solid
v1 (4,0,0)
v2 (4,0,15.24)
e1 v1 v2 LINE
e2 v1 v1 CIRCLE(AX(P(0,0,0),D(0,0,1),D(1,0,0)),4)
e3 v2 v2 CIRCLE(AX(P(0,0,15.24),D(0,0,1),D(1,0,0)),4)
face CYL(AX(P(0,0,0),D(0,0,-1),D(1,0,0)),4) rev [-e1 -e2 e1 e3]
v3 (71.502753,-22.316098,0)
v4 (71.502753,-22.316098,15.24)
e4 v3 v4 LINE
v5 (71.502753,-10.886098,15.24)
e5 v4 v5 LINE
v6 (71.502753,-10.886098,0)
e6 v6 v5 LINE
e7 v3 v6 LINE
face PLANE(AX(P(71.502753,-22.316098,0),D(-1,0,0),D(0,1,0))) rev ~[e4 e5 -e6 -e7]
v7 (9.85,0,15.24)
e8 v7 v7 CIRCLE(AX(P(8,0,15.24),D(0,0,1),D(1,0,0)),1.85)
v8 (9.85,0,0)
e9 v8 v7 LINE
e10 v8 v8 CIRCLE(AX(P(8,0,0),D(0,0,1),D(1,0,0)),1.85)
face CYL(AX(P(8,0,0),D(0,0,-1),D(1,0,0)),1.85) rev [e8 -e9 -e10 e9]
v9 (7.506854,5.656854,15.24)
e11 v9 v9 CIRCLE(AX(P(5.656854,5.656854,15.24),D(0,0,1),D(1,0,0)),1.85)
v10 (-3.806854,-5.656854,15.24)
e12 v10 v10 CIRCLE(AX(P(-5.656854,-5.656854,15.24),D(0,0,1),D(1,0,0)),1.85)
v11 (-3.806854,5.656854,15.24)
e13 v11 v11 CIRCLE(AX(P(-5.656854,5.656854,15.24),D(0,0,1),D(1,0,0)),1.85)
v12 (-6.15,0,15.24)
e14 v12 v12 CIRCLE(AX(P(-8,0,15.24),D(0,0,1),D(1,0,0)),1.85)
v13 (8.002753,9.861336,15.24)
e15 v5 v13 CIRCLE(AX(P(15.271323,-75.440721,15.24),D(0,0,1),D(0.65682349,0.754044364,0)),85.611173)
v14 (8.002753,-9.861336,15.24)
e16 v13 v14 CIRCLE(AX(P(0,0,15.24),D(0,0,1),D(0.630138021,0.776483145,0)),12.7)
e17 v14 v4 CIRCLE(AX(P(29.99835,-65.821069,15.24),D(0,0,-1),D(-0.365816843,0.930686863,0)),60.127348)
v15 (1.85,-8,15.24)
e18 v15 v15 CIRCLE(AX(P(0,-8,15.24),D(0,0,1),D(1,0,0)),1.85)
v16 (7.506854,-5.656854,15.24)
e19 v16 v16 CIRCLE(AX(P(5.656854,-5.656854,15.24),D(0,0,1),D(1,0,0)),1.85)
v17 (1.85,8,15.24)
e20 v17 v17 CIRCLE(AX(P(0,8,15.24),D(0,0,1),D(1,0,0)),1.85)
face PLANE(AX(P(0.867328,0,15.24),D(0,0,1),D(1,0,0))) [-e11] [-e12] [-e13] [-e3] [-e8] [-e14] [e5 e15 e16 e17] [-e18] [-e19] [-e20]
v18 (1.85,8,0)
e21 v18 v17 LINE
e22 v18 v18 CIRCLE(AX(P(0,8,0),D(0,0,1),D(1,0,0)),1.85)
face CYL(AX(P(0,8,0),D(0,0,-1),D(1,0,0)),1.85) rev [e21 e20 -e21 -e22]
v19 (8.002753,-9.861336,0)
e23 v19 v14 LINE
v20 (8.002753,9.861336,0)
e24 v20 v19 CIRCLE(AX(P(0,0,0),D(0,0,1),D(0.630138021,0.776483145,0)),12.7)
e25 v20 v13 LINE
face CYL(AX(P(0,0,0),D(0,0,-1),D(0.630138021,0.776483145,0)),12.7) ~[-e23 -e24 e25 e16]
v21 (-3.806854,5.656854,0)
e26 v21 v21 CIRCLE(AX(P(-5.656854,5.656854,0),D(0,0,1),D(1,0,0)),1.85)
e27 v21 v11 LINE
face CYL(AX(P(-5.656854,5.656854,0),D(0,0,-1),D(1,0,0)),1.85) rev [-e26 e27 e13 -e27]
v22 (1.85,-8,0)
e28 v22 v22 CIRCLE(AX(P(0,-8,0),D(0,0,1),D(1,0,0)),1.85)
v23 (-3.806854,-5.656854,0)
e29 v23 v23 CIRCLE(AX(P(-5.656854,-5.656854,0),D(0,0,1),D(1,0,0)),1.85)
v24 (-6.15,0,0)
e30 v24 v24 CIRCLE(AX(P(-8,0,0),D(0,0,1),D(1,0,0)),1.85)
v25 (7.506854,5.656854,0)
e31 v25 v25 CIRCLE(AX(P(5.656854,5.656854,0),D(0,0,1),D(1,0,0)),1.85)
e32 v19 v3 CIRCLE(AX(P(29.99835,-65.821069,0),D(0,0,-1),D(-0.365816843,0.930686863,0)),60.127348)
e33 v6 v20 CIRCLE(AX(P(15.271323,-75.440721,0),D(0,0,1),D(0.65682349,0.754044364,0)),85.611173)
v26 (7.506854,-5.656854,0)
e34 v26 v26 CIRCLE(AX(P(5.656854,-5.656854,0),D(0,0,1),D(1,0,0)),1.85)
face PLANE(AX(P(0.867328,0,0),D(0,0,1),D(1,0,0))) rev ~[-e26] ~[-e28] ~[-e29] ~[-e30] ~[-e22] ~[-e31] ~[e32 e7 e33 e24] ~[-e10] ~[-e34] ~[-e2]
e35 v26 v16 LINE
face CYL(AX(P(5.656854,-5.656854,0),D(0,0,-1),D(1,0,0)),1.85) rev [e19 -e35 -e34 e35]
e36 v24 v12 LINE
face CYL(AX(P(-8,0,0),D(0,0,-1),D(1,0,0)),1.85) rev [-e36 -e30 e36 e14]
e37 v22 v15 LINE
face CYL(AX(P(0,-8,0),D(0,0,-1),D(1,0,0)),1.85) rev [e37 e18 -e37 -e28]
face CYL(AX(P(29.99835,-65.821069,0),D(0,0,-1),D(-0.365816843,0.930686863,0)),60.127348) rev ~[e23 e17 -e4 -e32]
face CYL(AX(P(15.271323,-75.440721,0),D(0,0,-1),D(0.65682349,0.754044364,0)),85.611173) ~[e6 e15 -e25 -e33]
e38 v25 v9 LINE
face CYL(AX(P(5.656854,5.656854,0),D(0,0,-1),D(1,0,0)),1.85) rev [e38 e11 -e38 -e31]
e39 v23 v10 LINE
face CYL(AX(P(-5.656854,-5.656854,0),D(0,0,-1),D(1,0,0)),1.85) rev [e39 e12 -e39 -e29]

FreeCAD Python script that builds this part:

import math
import FreeCAD as App
import Part
import Sketcher

V = App.Vector
Q = App.Units.Quantity

doc = App.newDocument("Part")
body = doc.addObject("PartDesign::Body", "Body")

sketch1 = doc.addObject("Sketcher::SketchObject", "Sketch")
body.addObject(sketch1)
sketch1.AttachmentSupport = (doc.XY_Plane, [""])
sketch1.MapMode = "FlatFace"
sketch1.addGeometry([
    Part.ArcOfCircle(Part.Circle(V(0, 0, 0), V(0, 0, 1), 12.7), math.radians(51), math.radians(309)),
    Part.ArcOfCircle(Part.Circle(V(30, -65.8, 0), V(0, 0, 1), 60.1), math.radians(46), math.radians(111)),
    Part.LineSegment(V(71.5, -22.3, 0), V(71.5, -10.9, 0)),
    Part.ArcOfCircle(Part.Circle(V(15.3, -75.4, 0), V(0, 0, 1), 85.6), math.radians(49), math.radians(95)),
    Part.Circle(V(-5.7, -5.7, 0), V(0, 0, 1), 1.9),
    Part.Circle(V(0, -8, 0), V(0, 0, 1), 1.9),
    Part.Circle(V(5.7, -5.7, 0), V(0, 0, 1), 1.9),
    Part.Circle(V(-8, 0, 0), V(0, 0, 1), 1.9),
    Part.Circle(V(-5.7, 5.7, 0), V(0, 0, 1), 1.9),
    Part.Circle(V(0, 0, 0), V(0, 0, 1), 4),
    Part.Circle(V(8, 0, 0), V(0, 0, 1), 1.9),
    Part.Circle(V(0, 8, 0), V(0, 0, 1), 1.9),
    Part.Circle(V(5.7, 5.7, 0), V(0, 0, 1), 1.9),
], False)
sketch1.addConstraint([
    Sketcher.Constraint("Coincident", 0, 2, 1, 2),
    Sketcher.Constraint("Coincident", 1, 1, 2, 1),
    Sketcher.Constraint("Coincident", 2, 2, 3, 1),
    Sketcher.Constraint("Coincident", 3, 2, 0, 1),
    Sketcher.Constraint("Vertical", 2),
    Sketcher.Constraint("Coincident", 0, 3, -1, 1),
    Sketcher.Constraint("Coincident", 9, 3, -1, 1),
    Sketcher.Constraint("Equal", 4, 5),
    Sketcher.Constraint("Equal", 5, 6),
    Sketcher.Constraint("Equal", 6, 7),
    Sketcher.Constraint("Equal", 7, 8),
    Sketcher.Constraint("Equal", 8, 10),
    Sketcher.Constraint("Equal", 10, 11),
    Sketcher.Constraint("Equal", 11, 12),
    Sketcher.Constraint("Symmetric", 6, 3, 8, 3, -1, 1),
    Sketcher.Constraint("Symmetric", 7, 3, 10, 3, -1, 1),
    Sketcher.Constraint("Symmetric", 5, 3, 11, 3, -1, 1),
    Sketcher.Constraint("Symmetric", 4, 3, 12, 3, -1, 1),
    Sketcher.Constraint("Symmetric", 4, 3, 6, 3, -2),
    Sketcher.Constraint("PointOnObject", 5, 3, -2),
    Sketcher.Constraint("PointOnObject", 7, 3, -1),
    Sketcher.Constraint("Vertical", 0, 2, 3, 2),
    Sketcher.Constraint("Radius", 0, Q("0.5 in")),
    Sketcher.Constraint("DistanceY", 2, 1, 2, 2, Q("0.45 in")),
    Sketcher.Constraint("DistanceX", 0, 2, 1, 1, Q("2.5 in")),
    Sketcher.Constraint("Diameter", 4, 3.7),
    Sketcher.Constraint("Diameter", 9, 8.0),
    Sketcher.Constraint("Radius", 1, 60.127348),
    Sketcher.Constraint("Radius", 3, 85.611173),
    Sketcher.Constraint("DistanceY", 5, 3, -1, 1, 8.0),
    Sketcher.Constraint("DistanceX", 7, 3, -1, 1, 8.0),
    Sketcher.Constraint("DistanceX", 6, 3, 0, 2, 2.345899),
    Sketcher.Constraint("DistanceX", -1, 1, 1, 3, 29.99835),
    Sketcher.Constraint("DistanceY", 1, 3, -1, 1, 65.821069),
    Sketcher.Constraint("DistanceY", 0, 2, 6, 3, 4.204482),
])
pad1 = doc.addObject("PartDesign::Pad", "Pad")
body.addObject(pad1)
pad1.Profile = sketch1
pad1.Length = Q("0.6 in")

doc.recompute()
